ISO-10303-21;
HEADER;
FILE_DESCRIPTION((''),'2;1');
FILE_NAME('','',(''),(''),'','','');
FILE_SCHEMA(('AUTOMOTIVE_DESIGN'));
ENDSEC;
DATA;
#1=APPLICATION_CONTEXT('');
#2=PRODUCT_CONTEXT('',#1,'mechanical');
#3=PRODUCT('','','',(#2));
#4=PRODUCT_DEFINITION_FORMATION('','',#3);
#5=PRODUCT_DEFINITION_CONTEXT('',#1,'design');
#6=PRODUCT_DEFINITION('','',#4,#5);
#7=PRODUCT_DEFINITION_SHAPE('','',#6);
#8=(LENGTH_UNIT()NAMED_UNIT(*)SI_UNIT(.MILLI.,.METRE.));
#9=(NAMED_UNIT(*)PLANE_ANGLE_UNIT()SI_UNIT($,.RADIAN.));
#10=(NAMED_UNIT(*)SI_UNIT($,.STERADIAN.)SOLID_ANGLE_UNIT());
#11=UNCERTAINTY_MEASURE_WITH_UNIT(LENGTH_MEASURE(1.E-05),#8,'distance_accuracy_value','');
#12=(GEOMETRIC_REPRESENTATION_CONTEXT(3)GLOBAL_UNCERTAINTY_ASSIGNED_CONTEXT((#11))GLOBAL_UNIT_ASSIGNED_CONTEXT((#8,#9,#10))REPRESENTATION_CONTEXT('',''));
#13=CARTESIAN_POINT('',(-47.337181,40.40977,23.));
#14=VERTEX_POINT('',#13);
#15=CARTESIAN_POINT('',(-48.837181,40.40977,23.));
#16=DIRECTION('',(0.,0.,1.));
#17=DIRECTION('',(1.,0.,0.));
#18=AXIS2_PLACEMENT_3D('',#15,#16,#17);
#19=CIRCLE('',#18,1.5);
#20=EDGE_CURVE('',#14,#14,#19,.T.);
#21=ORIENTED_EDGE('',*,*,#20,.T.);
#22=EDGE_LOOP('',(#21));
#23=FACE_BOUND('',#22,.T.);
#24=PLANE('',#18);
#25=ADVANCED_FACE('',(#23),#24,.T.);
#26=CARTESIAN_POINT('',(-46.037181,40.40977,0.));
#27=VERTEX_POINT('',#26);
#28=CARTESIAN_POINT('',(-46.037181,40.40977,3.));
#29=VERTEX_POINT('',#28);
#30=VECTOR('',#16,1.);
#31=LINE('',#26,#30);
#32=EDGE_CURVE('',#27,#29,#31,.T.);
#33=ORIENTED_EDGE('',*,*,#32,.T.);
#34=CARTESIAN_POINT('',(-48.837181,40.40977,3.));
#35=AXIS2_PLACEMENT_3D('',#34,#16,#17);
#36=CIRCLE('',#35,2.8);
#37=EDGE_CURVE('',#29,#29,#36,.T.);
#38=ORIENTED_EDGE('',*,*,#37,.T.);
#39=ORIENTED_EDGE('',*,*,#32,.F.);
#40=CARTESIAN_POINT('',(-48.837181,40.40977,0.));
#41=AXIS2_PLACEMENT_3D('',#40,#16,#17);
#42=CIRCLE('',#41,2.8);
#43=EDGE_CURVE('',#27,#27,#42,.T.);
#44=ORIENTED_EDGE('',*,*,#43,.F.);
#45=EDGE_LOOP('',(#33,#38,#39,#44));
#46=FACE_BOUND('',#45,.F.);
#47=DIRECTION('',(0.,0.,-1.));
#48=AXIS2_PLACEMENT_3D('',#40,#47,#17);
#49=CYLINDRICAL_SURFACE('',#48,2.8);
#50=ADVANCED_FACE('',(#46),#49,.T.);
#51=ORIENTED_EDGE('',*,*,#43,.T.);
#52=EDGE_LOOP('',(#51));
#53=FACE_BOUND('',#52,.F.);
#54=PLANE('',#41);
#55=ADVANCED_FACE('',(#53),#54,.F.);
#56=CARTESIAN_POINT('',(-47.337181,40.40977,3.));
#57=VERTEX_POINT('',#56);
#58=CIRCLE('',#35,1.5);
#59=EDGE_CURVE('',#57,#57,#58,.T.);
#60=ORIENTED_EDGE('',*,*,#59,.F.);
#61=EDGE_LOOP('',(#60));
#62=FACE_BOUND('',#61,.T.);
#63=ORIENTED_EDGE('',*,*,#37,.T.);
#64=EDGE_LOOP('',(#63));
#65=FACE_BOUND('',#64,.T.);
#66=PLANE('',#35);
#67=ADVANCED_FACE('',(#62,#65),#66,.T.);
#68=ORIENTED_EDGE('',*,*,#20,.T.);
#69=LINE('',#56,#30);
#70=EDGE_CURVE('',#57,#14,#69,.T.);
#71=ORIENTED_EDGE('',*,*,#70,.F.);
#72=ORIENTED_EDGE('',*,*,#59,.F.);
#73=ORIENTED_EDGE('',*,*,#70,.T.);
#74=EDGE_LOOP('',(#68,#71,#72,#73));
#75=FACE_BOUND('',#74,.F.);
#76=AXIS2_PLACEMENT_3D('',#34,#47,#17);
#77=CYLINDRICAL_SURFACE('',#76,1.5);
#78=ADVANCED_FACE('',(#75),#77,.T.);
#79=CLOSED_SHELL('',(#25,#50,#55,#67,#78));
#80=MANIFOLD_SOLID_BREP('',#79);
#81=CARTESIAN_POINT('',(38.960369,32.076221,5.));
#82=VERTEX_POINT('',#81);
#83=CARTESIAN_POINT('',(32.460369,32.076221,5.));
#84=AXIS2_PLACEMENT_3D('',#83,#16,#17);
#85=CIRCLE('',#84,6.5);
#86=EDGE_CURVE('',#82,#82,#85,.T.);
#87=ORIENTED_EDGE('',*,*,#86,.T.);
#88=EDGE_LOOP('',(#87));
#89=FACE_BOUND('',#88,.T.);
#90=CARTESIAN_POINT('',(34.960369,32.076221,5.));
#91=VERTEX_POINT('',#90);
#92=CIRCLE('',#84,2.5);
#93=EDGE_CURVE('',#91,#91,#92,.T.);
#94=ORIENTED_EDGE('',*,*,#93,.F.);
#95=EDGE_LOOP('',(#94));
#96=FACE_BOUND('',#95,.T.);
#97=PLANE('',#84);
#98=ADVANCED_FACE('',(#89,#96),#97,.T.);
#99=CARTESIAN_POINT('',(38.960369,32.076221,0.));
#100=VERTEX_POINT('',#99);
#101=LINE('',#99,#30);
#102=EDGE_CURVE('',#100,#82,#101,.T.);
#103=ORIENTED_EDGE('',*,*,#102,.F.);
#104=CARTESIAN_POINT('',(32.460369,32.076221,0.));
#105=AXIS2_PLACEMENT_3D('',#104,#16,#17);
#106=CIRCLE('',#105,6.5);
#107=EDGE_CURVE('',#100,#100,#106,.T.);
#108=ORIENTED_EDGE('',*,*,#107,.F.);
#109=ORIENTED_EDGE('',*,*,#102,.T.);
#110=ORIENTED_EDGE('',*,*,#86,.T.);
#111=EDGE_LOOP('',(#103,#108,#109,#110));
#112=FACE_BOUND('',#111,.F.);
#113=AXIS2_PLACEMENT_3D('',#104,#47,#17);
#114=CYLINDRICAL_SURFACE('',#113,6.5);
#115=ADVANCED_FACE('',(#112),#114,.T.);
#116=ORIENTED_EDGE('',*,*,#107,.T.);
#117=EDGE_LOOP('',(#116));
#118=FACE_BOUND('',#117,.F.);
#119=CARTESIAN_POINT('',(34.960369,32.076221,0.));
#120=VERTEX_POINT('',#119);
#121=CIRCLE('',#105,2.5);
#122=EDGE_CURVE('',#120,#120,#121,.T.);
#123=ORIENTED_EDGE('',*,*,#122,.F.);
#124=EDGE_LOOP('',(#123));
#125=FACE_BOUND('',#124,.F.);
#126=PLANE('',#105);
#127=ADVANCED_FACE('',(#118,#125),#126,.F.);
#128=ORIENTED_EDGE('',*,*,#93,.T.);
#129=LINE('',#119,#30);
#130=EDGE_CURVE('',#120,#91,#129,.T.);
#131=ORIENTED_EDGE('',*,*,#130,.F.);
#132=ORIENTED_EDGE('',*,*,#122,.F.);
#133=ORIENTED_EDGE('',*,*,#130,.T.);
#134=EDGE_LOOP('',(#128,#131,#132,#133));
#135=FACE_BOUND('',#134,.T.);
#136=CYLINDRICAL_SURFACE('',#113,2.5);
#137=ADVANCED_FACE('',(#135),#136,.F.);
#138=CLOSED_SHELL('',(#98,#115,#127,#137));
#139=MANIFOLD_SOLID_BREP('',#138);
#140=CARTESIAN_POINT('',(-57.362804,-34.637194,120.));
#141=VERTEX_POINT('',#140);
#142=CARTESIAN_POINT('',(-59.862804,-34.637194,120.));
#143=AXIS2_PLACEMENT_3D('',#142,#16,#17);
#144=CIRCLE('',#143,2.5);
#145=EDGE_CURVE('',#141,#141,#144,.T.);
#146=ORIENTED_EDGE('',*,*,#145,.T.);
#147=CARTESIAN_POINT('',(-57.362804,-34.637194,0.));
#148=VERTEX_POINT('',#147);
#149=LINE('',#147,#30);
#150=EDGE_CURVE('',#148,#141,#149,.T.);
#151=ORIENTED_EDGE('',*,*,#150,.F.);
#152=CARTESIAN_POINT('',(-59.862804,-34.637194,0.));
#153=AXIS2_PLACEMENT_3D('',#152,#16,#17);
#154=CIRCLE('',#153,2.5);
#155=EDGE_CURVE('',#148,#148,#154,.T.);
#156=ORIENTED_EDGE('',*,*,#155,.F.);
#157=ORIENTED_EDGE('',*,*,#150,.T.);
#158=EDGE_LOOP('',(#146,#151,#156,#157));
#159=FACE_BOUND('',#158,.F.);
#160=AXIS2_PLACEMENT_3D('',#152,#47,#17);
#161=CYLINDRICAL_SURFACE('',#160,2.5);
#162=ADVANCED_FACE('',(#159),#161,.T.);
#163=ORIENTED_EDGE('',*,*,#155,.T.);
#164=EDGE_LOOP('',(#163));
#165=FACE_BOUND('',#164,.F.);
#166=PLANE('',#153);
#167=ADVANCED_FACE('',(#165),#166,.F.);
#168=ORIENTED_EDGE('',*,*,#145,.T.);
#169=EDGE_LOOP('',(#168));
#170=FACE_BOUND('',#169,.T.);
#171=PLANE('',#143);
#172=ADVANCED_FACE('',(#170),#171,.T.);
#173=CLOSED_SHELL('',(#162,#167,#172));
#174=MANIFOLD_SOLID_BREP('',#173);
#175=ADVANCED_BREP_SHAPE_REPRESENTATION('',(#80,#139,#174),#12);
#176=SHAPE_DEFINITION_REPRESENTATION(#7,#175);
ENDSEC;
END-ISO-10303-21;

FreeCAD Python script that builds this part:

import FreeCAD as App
import Part
import Sketcher

V = App.Vector

doc = App.newDocument("Part")
params = doc.addObject("Spreadsheet::Sheet", "Params")
for row, (alias, value) in enumerate([
    ("sketch1_diameter", "5.6 mm"),
    ("pad1_length", "3 mm"),
    ("sketch2_diameter", "3 mm"),
    ("pad2_length", "20 mm"),
    ("sketch3_diameter", "13 mm"),
    ("sketch3_diameter2", "5 mm"),
    ("pad3_length", "5 mm"),
    ("sketch4_diameter", "5 mm"),
    ("pad4_length", "120 mm"),
], start=1):
    params.set(f"A{row}", alias)
    params.set(f"B{row}", "=" + value)
    params.setAlias(f"B{row}", alias)

body = doc.addObject("PartDesign::Body", "Body")

sketch1 = body.newObject("Sketcher::SketchObject", "Sketch")
sketch1.AttachmentSupport = (doc.getObject("XY_Plane"), [""])
sketch1.MapMode = "FlatFace"
sketch1.addGeometry(Part.Circle(V(-48.8, 40.4, 0), V(0, 0, 1), 2.8), False)
sketch1.addConstraint([
    Sketcher.Constraint("Diameter", 0, 5.6),
    Sketcher.Constraint("DistanceX", 0, 3, -1, 1, 48.837181),
    Sketcher.Constraint("DistanceY", -1, 1, 0, 3, 40.40977),
])
sketch1.setExpression("Constraints[0]", "Params.sketch1_diameter")
pad1 = body.newObject("PartDesign::Pad", "Pad")
pad1.Profile = sketch1
pad1.setExpression("Length", "Params.pad1_length")

sketch2 = body.newObject("Sketcher::SketchObject", "Sketch001")
sketch2.AttachmentSupport = (doc.getObject("XY_Plane"), [""])
sketch2.MapMode = "FlatFace"
sketch2.AttachmentOffset = App.Placement(V(0, 0, 3), App.Rotation())
sketch2.addGeometry(Part.Circle(V(-48.8, 40.4, 0), V(0, 0, 1), 1.5), False)
sketch2.addConstraint([
    Sketcher.Constraint("Diameter", 0, 3.0),
    Sketcher.Constraint("DistanceX", 0, 3, -1, 1, 48.837181),
    Sketcher.Constraint("DistanceY", -1, 1, 0, 3, 40.40977),
])
sketch2.setExpression("Constraints[0]", "Params.sketch2_diameter")
pad2 = body.newObject("PartDesign::Pad", "Pad001")
pad2.Profile = sketch2
pad2.setExpression("Length", "Params.pad2_length")
body2 = doc.addObject("PartDesign::Body", "Body001")

sketch3 = body2.newObject("Sketcher::SketchObject", "Sketch002")
sketch3.AttachmentSupport = (doc.getObject("XY_Plane001"), [""])
sketch3.MapMode = "FlatFace"
sketch3.addGeometry([
    Part.Circle(V(32.5, 32.1, 0), V(0, 0, 1), 6.5),
    Part.Circle(V(32.5, 32.1, 0), V(0, 0, 1), 2.5),
], False)
sketch3.addConstraint([
    Sketcher.Constraint("Coincident", 1, 3, 0, 3),
    Sketcher.Constraint("Diameter", 0, 13.0),
    Sketcher.Constraint("Diameter", 1, 5.0),
    Sketcher.Constraint("DistanceX", -1, 1, 0, 3, 32.460369),
    Sketcher.Constraint("DistanceY", -1, 1, 0, 3, 32.076221),
])
sketch3.setExpression("Constraints[1]", "Params.sketch3_diameter")
sketch3.setExpression("Constraints[2]", "Params.sketch3_diameter2")
pad3 = body2.newObject("PartDesign::Pad", "Pad002")
pad3.Profile = sketch3
pad3.setExpression("Length", "Params.pad3_length")
body3 = doc.addObject("PartDesign::Body", "Body002")

sketch4 = body3.newObject("Sketcher::SketchObject", "Sketch003")
sketch4.AttachmentSupport = (doc.getObject("XY_Plane002"), [""])
sketch4.MapMode = "FlatFace"
sketch4.addGeometry(Part.Circle(V(-59.9, -34.6, 0), V(0, 0, 1), 2.5), False)
sketch4.addConstraint([
    Sketcher.Constraint("Diameter", 0, 5.0),
    Sketcher.Constraint("DistanceX", 0, 3, -1, 1, 59.862804),
    Sketcher.Constraint("DistanceY", 0, 3, -1, 1, 34.637194),
])
sketch4.setExpression("Constraints[0]", "Params.sketch4_diameter")
pad4 = body3.newObject("PartDesign::Pad", "Pad003")
pad4.Profile = sketch4
pad4.setExpression("Length", "Params.pad4_length")

doc.recompute()
